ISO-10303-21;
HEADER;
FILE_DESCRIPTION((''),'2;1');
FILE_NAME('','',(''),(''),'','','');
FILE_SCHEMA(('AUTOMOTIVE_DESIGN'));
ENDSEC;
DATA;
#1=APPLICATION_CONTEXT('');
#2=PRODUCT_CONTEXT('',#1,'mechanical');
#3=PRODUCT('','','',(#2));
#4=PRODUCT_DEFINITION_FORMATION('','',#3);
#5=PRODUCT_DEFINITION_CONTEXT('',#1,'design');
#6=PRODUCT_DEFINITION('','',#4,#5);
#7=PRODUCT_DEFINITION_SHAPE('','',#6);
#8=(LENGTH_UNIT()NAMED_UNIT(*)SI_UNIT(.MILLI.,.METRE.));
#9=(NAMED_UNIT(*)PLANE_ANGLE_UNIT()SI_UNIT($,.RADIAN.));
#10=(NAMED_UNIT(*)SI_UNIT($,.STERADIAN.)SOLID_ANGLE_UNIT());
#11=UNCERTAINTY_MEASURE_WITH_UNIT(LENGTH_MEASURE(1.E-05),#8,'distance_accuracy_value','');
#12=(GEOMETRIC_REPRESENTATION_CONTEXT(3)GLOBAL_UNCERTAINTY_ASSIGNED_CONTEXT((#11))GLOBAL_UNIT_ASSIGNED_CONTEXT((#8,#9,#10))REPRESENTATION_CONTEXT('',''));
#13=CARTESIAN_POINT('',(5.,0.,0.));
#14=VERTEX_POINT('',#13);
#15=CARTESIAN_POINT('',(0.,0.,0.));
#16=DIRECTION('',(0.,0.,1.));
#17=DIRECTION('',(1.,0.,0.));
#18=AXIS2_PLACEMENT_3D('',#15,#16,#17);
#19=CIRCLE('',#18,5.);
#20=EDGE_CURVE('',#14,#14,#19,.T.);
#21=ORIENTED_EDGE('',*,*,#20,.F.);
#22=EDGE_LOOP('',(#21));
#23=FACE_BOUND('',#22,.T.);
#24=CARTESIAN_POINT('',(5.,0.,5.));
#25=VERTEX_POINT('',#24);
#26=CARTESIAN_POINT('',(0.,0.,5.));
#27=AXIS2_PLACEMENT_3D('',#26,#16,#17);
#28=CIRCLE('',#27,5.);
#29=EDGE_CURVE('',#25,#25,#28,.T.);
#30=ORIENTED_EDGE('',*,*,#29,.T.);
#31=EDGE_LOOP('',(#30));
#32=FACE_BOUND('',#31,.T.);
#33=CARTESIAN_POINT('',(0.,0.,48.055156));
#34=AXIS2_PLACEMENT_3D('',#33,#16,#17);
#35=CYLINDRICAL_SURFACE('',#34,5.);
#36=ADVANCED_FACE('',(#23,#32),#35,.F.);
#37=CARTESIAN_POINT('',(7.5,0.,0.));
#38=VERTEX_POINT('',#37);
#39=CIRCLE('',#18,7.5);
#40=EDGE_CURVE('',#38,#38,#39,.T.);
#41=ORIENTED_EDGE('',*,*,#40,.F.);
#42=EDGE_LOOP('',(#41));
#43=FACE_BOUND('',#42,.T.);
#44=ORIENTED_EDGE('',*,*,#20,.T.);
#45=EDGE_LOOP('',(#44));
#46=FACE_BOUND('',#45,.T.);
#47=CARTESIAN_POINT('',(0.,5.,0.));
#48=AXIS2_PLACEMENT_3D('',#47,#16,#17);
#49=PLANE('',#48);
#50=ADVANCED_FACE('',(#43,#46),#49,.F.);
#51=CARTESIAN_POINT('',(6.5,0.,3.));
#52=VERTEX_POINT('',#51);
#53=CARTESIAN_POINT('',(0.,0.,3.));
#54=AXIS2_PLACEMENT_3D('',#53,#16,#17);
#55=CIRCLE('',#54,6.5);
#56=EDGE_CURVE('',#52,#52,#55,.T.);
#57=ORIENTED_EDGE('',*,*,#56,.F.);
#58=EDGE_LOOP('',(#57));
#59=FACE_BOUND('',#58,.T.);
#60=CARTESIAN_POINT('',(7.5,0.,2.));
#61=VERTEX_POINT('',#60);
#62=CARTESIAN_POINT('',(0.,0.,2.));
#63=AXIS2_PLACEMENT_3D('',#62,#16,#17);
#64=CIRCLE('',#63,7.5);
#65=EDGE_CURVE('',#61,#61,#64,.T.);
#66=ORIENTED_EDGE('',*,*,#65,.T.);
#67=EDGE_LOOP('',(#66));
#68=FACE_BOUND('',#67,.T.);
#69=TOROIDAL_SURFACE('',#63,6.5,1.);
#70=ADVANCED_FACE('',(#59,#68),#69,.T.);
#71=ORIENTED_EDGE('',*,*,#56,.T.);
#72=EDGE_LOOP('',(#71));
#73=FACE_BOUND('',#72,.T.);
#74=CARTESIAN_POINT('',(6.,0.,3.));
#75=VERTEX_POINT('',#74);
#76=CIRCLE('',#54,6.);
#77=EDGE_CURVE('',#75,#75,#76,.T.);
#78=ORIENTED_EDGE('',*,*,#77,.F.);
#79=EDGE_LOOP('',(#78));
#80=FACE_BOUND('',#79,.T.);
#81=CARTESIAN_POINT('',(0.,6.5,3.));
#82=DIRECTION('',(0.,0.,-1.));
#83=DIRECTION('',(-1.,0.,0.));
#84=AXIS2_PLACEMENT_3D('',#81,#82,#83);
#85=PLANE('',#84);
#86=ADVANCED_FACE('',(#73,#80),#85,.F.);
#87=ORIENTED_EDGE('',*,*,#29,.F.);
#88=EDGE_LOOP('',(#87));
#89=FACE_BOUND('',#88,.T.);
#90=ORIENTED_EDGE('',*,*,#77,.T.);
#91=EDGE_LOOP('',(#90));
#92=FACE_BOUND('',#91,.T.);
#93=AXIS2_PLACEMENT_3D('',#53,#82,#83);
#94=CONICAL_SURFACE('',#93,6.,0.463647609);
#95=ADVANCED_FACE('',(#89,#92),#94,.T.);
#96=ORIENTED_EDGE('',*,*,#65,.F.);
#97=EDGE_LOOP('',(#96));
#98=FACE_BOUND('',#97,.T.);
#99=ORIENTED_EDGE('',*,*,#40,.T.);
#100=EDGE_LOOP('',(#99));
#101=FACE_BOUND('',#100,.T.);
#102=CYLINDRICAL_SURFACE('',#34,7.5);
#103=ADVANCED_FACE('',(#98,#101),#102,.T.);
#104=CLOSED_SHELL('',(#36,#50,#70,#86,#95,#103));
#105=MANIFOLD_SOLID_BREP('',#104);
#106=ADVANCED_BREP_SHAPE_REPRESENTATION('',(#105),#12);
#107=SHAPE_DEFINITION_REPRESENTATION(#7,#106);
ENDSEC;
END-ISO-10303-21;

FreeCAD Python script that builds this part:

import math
import FreeCAD as App
import Part
import Sketcher

V = App.Vector
Q = App.Units.Quantity

doc = App.newDocument("Part")
body = doc.addObject("PartDesign::Body", "Body")

# Sketch on YZ plane
sketch1 = doc.addObject("Sketcher::SketchObject", "Sketch")
body.addObject(sketch1)
sketch1.AttachmentSupport = (doc.YZ_Plane, [""])
sketch1.MapMode = "FlatFace"
sketch1.addGeometry(Part.LineSegment(V(5, 0, 0), V(7.5, 0, 0)), False)
sketch1.addGeometry(Part.LineSegment(V(7.5, 0, 0), V(7.5, 2, 0)), False)
sketch1.addGeometry(Part.ArcOfCircle(Part.Circle(V(6.5, 2, 0), V(0, 0, 1), 1), math.radians(0), math.radians(90)), False)
sketch1.addGeometry(Part.LineSegment(V(6.5, 3, 0), V(6, 3, 0)), False)
sketch1.addGeometry(Part.LineSegment(V(6, 3, 0), V(5, 5, 0)), False)
sketch1.addGeometry(Part.LineSegment(V(5, 5, 0), V(5, 0, 0)), False)
sketch1.addConstraint(Sketcher.Constraint("Coincident", 0, 2, 1, 1))
sketch1.addConstraint(Sketcher.Constraint("Tangent", 1, 2, 2, 1))
sketch1.addConstraint(Sketcher.Constraint("Tangent", 2, 2, 3, 1))
sketch1.addConstraint(Sketcher.Constraint("Coincident", 3, 2, 4, 1))
sketch1.addConstraint(Sketcher.Constraint("Coincident", 4, 2, 5, 1))
sketch1.addConstraint(Sketcher.Constraint("Coincident", 5, 2, 0, 1))
sketch1.addConstraint(Sketcher.Constraint("Horizontal", 0))
sketch1.addConstraint(Sketcher.Constraint("Vertical", 1))
sketch1.addConstraint(Sketcher.Constraint("Horizontal", 3))
sketch1.addConstraint(Sketcher.Constraint("Vertical", 5))
sketch1.addConstraint(Sketcher.Constraint("PointOnObject", 0, 2, -1))
sketch1.addConstraint(Sketcher.Constraint("Radius", 2, Q("1 mm")))
sketch1.addConstraint(Sketcher.Constraint("DistanceY", 1, 1, 1, 2, Q("2 mm")))
sketch1.addConstraint(Sketcher.Constraint("DistanceY", 5, 2, 5, 1, Q("5 mm")))
sketch1.addConstraint(Sketcher.Constraint("DistanceX", 0, 1, 0, 2, Q("2.5 mm")))
sketch1.addConstraint(Sketcher.Constraint("DistanceX", 3, 2, 3, 1, Q("0.5 mm")))
sketch1.addConstraint(Sketcher.Constraint("DistanceX", -1, 1, 3, 2, Q("6 mm")))
revolution = doc.addObject("PartDesign::Revolution", "Revolution")
body.addObject(revolution)
revolution.Profile = sketch1
revolution.ReferenceAxis = (sketch1, ["V_Axis"])
revolution.Angle = 360

doc.recompute()
